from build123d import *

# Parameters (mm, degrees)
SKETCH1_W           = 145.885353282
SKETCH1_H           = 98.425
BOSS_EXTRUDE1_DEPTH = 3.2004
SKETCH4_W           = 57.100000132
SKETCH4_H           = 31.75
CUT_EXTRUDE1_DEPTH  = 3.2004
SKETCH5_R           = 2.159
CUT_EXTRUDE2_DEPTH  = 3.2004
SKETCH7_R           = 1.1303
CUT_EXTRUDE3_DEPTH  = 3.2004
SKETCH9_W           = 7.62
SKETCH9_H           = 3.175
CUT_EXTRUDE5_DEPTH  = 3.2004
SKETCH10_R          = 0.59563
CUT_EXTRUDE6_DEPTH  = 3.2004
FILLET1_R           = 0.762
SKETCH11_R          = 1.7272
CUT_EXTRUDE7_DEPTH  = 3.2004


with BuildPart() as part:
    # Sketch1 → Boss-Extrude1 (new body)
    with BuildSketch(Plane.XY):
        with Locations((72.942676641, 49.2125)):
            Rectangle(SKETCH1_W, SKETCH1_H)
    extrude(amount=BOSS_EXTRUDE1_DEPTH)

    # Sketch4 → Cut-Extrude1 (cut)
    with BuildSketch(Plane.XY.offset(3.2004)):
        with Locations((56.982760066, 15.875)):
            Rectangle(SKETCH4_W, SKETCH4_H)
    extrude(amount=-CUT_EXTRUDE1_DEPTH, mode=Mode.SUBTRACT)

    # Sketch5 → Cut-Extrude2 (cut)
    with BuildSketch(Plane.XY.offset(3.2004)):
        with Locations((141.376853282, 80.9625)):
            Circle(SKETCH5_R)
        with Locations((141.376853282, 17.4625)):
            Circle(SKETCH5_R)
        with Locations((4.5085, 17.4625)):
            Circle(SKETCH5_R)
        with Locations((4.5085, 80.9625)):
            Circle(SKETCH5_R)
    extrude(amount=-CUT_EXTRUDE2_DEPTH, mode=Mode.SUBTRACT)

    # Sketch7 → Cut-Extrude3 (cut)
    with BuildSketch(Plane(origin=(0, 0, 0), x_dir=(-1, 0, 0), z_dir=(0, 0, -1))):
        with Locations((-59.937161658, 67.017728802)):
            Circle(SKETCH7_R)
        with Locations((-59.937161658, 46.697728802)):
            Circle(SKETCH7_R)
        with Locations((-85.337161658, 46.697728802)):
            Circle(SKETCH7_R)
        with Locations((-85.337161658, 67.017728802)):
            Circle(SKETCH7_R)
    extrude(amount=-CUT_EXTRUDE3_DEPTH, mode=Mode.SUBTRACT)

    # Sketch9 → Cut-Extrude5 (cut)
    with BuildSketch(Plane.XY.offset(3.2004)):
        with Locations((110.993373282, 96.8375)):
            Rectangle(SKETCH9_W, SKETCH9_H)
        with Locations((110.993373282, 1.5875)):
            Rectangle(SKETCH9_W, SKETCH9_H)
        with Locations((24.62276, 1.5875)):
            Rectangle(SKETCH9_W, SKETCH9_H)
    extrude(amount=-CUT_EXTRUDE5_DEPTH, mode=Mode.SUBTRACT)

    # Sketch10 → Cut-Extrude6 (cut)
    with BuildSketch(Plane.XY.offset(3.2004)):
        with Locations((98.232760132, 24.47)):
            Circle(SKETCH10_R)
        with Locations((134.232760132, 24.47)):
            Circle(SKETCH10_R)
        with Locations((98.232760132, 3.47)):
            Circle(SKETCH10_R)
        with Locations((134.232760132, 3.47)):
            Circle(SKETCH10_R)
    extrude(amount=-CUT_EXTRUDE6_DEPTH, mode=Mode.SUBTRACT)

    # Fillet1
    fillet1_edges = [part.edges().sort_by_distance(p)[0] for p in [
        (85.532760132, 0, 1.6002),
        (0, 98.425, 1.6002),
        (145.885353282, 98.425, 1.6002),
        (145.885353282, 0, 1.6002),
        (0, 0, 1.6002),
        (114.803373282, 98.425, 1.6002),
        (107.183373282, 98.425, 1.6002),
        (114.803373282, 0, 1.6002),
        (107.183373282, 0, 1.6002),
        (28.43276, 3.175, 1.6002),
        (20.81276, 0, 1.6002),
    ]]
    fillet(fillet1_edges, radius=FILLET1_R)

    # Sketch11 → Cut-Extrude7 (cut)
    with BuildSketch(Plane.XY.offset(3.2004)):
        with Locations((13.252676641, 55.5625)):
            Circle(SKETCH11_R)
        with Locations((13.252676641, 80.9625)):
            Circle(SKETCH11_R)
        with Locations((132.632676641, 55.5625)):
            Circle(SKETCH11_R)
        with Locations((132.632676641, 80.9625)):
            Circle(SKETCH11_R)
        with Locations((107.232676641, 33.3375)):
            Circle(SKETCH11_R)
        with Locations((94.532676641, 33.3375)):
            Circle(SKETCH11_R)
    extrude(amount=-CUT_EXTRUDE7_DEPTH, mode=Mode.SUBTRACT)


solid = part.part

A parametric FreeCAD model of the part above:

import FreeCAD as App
import Part
import Sketcher

V = App.Vector
Q = App.Units.Quantity


def edges_at(feature, points):
    """Names of the edges that pass closest to the given points."""
    edges = feature.Shape.Edges
    near = lambda p: min(range(len(edges)), key=lambda i: edges[i].distToShape(Part.Vertex(*p))[0])
    return sorted({f"Edge{near(p) + 1}" for p in points})


def add_polygon(sketch, points):
    """Adds a closed chain of lines whose ends are joined by coincident constraints."""
    first, n = sketch.GeometryCount, len(points)
    for a, b in zip(points, points[1:] + points[:1]):
        sketch.addGeometry(Part.LineSegment(App.Vector(*a, 0), App.Vector(*b, 0)), False)
    for i in range(n):
        sketch.addConstraint(Sketcher.Constraint("Coincident", first + i, 2, first + (i + 1) % n, 1))

doc = App.newDocument("Part")
body = doc.addObject("PartDesign::Body", "Body")

# Sketch on XY plane
sketch1 = body.newObject("Sketcher::SketchObject", "Sketch")
sketch1.AttachmentSupport = (doc.getObject("XY_Plane"), [""])
sketch1.MapMode = "FlatFace"
add_polygon(sketch1, [(0, 98), (0, 0), (146, 0), (146, 98)])  # lines 0-3
sketch1.addConstraint([
    Sketcher.Constraint("Vertical", 0),
    Sketcher.Constraint("Horizontal", 1),
    Sketcher.Constraint("Vertical", 2),
    Sketcher.Constraint("Horizontal", 3),
    Sketcher.Constraint("Coincident", 0, 2, -1, 1),
    Sketcher.Constraint("DistanceY", 0, 2, 0, 1, Q("3.875 in")),
    Sketcher.Constraint("DistanceX", 1, 1, 1, 2, 145.885353),
])
pad1 = body.newObject("PartDesign::Pad", "Pad")
pad1.Profile = sketch1
pad1.Length = Q("0.126 in")

# Sketch on XY plane
sketch2 = body.newObject("Sketcher::SketchObject", "Sketch001")
sketch2.AttachmentSupport = (doc.getObject("XY_Plane"), [""])
sketch2.MapMode = "FlatFace"
sketch2.AttachmentOffset = App.Placement(V(0, 0, 0.126 * 25.4), App.Rotation())
add_polygon(sketch2, [(28, 32), (28, 0), (86, 0), (86, 32)])  # lines 0-3
sketch2.addConstraint([
    Sketcher.Constraint("Vertical", 0),
    Sketcher.Constraint("Horizontal", 1),
    Sketcher.Constraint("Vertical", 2),
    Sketcher.Constraint("Horizontal", 3),
    Sketcher.Constraint("PointOnObject", 0, 2, -1),
    Sketcher.Constraint("DistanceY", 0, 2, 0, 1, Q("1.25 in")),
    Sketcher.Constraint("DistanceX", 1, 1, 1, 2, 57.1),
    Sketcher.Constraint("DistanceX", -1, 1, 0, 2, Q("1.1194 in")),
])
pocket1 = body.newObject("PartDesign::Pocket", "Pocket")
pocket1.Profile = sketch2
pocket1.Length = Q("0.126 in")

# Sketch on XY plane
sketch3 = body.newObject("Sketcher::SketchObject", "Sketch002")
sketch3.AttachmentSupport = (doc.getObject("XY_Plane"), [""])
sketch3.MapMode = "FlatFace"
sketch3.AttachmentOffset = App.Placement(V(0, 0, 0.126 * 25.4), App.Rotation())
sketch3.addGeometry([
    Part.Circle(V(141.4, 81, 0), V(0, 0, 1), 2.2),
    Part.Circle(V(141.4, 17.5, 0), V(0, 0, 1), 2.2),
    Part.Circle(V(4.5, 17.5, 0), V(0, 0, 1), 2.2),
    Part.Circle(V(4.5, 81, 0), V(0, 0, 1), 2.2),
], False)
sketch3.addConstraint([
    Sketcher.Constraint("Equal", 0, 1),
    Sketcher.Constraint("Equal", 1, 2),
    Sketcher.Constraint("Equal", 2, 3),
    Sketcher.Constraint("Horizontal", 1, 3, 2, 3),
    Sketcher.Constraint("Horizontal", 0, 3, 3, 3),
    Sketcher.Constraint("Vertical", 0, 3, 1, 3),
    Sketcher.Constraint("Vertical", 2, 3, 3, 3),
    Sketcher.Constraint("Diameter", 0, Q("0.17 in")),
    Sketcher.Constraint("DistanceY", 1, 3, 0, 3, Q("2.5 in")),
    Sketcher.Constraint("DistanceY", -1, 1, 0, 3, Q("3.1875 in")),
    Sketcher.Constraint("DistanceX", -1, 1, 2, 3, Q("0.1775 in")),
    Sketcher.Constraint("DistanceX", -1, 1, 0, 3, 141.376853),
])
pocket2 = body.newObject("PartDesign::Pocket", "Pocket001")
pocket2.Profile = sketch3
pocket2.Length = Q("0.126 in")

# Sketch on XY plane
sketch4 = body.newObject("Sketcher::SketchObject", "Sketch003")
sketch4.AttachmentSupport = (doc.getObject("XY_Plane"), [""])
sketch4.MapMode = "FlatFace"
sketch4.addGeometry([
    Part.Circle(V(59.9, 67, 0), V(0, 0, 1), 1.1),
    Part.Circle(V(59.9, 46.7, 0), V(0, 0, 1), 1.1),
    Part.Circle(V(85.3, 46.7, 0), V(0, 0, 1), 1.1),
    Part.Circle(V(85.3, 67, 0), V(0, 0, 1), 1.1),
], False)
sketch4.addConstraint([
    Sketcher.Constraint("Equal", 0, 1),
    Sketcher.Constraint("Equal", 1, 2),
    Sketcher.Constraint("Equal", 2, 3),
    Sketcher.Constraint("Horizontal", 1, 3, 2, 3),
    Sketcher.Constraint("Horizontal", 0, 3, 3, 3),
    Sketcher.Constraint("Vertical", 0, 3, 1, 3),
    Sketcher.Constraint("Vertical", 2, 3, 3, 3),
    Sketcher.Constraint("Diameter", 0, Q("0.089 in")),
    Sketcher.Constraint("DistanceX", 1, 3, 2, 3, Q("1 in")),
    Sketcher.Constraint("DistanceY", 1, 3, 0, 3, Q("0.8 in")),
    Sketcher.Constraint("DistanceX", -1, 1, 0, 3, 59.937162),
    Sketcher.Constraint("DistanceY", -1, 1, 0, 3, 67.017729),
])
pocket3 = body.newObject("PartDesign::Pocket", "Pocket002")
pocket3.Profile = sketch4
pocket3.Length = Q("0.126 in")
pocket3.Reversed = True

# Sketch on XY plane
sketch5 = body.newObject("Sketcher::SketchObject", "Sketch004")
sketch5.AttachmentSupport = (doc.getObject("XY_Plane"), [""])
sketch5.MapMode = "FlatFace"
sketch5.AttachmentOffset = App.Placement(V(0, 0, 0.126 * 25.4), App.Rotation())
add_polygon(sketch5, [(107.2, 98.4), (107.2, 95.2), (114.8, 95.2), (114.8, 98.4)])  # lines 0-3
add_polygon(sketch5, [(107.2, 3.2), (107.2, 0), (114.8, 0), (114.8, 3.2)])  # lines 4-7
add_polygon(sketch5, [(20.8, 3.2), (20.8, 0), (28.4, 0), (28.4, 3.2)])  # lines 8-11
sketch5.addConstraint([
    Sketcher.Constraint("Vertical", 0),
    Sketcher.Constraint("Horizontal", 1),
    Sketcher.Constraint("Vertical", 2),
    Sketcher.Constraint("Horizontal", 3),
    Sketcher.Constraint("Vertical", 4),
    Sketcher.Constraint("Horizontal", 5),
    Sketcher.Constraint("Vertical", 6),
    Sketcher.Constraint("Horizontal", 7),
    Sketcher.Constraint("Vertical", 8),
    Sketcher.Constraint("Horizontal", 9),
    Sketcher.Constraint("Vertical", 10),
    Sketcher.Constraint("Horizontal", 11),
    Sketcher.Constraint("PointOnObject", 4, 2, -1),
    Sketcher.Constraint("PointOnObject", 8, 2, -1),
    Sketcher.Constraint("Horizontal", 7, 2, 10, 2),
    Sketcher.Constraint("Vertical", 3, 2, 4, 2),
    Sketcher.Constraint("Vertical", 2, 2, 5, 2),
    Sketcher.Constraint("Equal", 7, 9),
    Sketcher.Constraint("Equal", 2, 4),
    Sketcher.Constraint("DistanceX", 1, 1, 1, 2, Q("0.3 in")),
    Sketcher.Constraint("DistanceY", 0, 2, 0, 1, Q("0.125 in")),
    Sketcher.Constraint("DistanceY", -1, 1, 0, 2, Q("3.75 in")),
    Sketcher.Constraint("DistanceX", -1, 1, 8, 2, Q("0.8194 in")),
    Sketcher.Constraint("DistanceX", -1, 1, 0, 2, 107.183373),
])
pocket4 = body.newObject("PartDesign::Pocket", "Pocket003")
pocket4.Profile = sketch5
pocket4.Length = Q("0.126 in")

# Sketch on XY plane
sketch6 = body.newObject("Sketcher::SketchObject", "Sketch005")
sketch6.AttachmentSupport = (doc.getObject("XY_Plane"), [""])
sketch6.MapMode = "FlatFace"
sketch6.AttachmentOffset = App.Placement(V(0, 0, 0.126 * 25.4), App.Rotation())
sketch6.addGeometry([
    Part.Circle(V(98.2, 24.5, 0), V(0, 0, 1), 0.6),
    Part.Circle(V(134.2, 24.5, 0), V(0, 0, 1), 0.6),
    Part.Circle(V(98.2, 3.5, 0), V(0, 0, 1), 0.6),
    Part.Circle(V(134.2, 3.5, 0), V(0, 0, 1), 0.6),
], False)
sketch6.addConstraint([
    Sketcher.Constraint("Equal", 0, 1),
    Sketcher.Constraint("Equal", 1, 2),
    Sketcher.Constraint("Equal", 2, 3),
    Sketcher.Constraint("Horizontal", 0, 3, 1, 3),
    Sketcher.Constraint("Horizontal", 2, 3, 3, 3),
    Sketcher.Constraint("Vertical", 0, 3, 2, 3),
    Sketcher.Constraint("Vertical", 1, 3, 3, 3),
    Sketcher.Constraint("Diameter", 0, Q("0.0469 in")),
    Sketcher.Constraint("DistanceY", -1, 1, 0, 3, 24.47),
    Sketcher.Constraint("DistanceY", -1, 1, 2, 3, 3.47),
    Sketcher.Constraint("DistanceX", 0, 3, 1, 3, 36.0),
    Sketcher.Constraint("DistanceX", -1, 1, 0, 3, 98.23276),
])
pocket5 = body.newObject("PartDesign::Pocket", "Pocket004")
pocket5.Profile = sketch6
pocket5.Length = Q("0.126 in")
doc.recompute()

fillet = body.newObject("PartDesign::Fillet", "Fillet")
fillet.Base = (pocket5, edges_at(pocket5, [
    (85.533, 0, 1.6),
    (0, 98.425, 1.6),
    (145.885, 98.425, 1.6),
    (145.885, 0, 1.6),
    (0, 0, 1.6),
    (114.803, 98.425, 1.6),
    (107.183, 98.425, 1.6),
    (114.803, 0, 1.6),
    (107.183, 0, 1.6),
    (28.433, 3.175, 1.6),
    (20.813, 0, 1.6),
]))
fillet.Radius = Q("0.03 in")

# Sketch on XY plane
sketch7 = body.newObject("Sketcher::SketchObject", "Sketch006")
sketch7.AttachmentSupport = (doc.getObject("XY_Plane"), [""])
sketch7.MapMode = "FlatFace"
sketch7.AttachmentOffset = App.Placement(V(0, 0, 0.126 * 25.4), App.Rotation())
sketch7.addGeometry([
    Part.Circle(V(13.3, 55.6, 0), V(0, 0, 1), 1.7),  # 0
    Part.Circle(V(13.3, 81, 0), V(0, 0, 1), 1.7),  # 1
    Part.Circle(V(132.6, 55.6, 0), V(0, 0, 1), 1.7),  # 2
    Part.Circle(V(132.6, 81, 0), V(0, 0, 1), 1.7),  # 3
    Part.Circle(V(107.2, 33.3, 0), V(0, 0, 1), 1.7),  # 4
    Part.Circle(V(94.5, 33.3, 0), V(0, 0, 1), 1.7),  # 5
], False)
sketch7.addConstraint([
    Sketcher.Constraint("Equal", 0, 1),
    Sketcher.Constraint("Equal", 1, 2),
    Sketcher.Constraint("Equal", 2, 3),
    Sketcher.Constraint("Equal", 3, 4),
    Sketcher.Constraint("Equal", 4, 5),
    Sketcher.Constraint("Horizontal", 0, 3, 2, 3),
    Sketcher.Constraint("Horizontal", 1, 3, 3, 3),
    Sketcher.Constraint("Horizontal", 4, 3, 5, 3),
    Sketcher.Constraint("Vertical", 0, 3, 1, 3),
    Sketcher.Constraint("Vertical", 2, 3, 3, 3),
    Sketcher.Constraint("Diameter", 0, Q("0.136 in")),
    Sketcher.Constraint("DistanceY", 0, 3, 1, 3, Q("1 in")),
    Sketcher.Constraint("DistanceX", 4, 3, 2, 3, Q("1 in")),
    Sketcher.Constraint("DistanceX", 0, 3, 2, 3, Q("4.7 in")),
    Sketcher.Constraint("DistanceX", 5, 3, 4, 3, Q("0.5 in")),
    Sketcher.Constraint("DistanceY", -1, 1, 0, 3, Q("2.1875 in")),
    Sketcher.Constraint("DistanceY", -1, 1, 4, 3, Q("1.3125 in")),
    Sketcher.Constraint("DistanceX", -1, 1, 0, 3, 13.252677),
])
pocket6 = body.newObject("PartDesign::Pocket", "Pocket005")
pocket6.Profile = sketch7
pocket6.Length = Q("0.126 in")

doc.recompute()
